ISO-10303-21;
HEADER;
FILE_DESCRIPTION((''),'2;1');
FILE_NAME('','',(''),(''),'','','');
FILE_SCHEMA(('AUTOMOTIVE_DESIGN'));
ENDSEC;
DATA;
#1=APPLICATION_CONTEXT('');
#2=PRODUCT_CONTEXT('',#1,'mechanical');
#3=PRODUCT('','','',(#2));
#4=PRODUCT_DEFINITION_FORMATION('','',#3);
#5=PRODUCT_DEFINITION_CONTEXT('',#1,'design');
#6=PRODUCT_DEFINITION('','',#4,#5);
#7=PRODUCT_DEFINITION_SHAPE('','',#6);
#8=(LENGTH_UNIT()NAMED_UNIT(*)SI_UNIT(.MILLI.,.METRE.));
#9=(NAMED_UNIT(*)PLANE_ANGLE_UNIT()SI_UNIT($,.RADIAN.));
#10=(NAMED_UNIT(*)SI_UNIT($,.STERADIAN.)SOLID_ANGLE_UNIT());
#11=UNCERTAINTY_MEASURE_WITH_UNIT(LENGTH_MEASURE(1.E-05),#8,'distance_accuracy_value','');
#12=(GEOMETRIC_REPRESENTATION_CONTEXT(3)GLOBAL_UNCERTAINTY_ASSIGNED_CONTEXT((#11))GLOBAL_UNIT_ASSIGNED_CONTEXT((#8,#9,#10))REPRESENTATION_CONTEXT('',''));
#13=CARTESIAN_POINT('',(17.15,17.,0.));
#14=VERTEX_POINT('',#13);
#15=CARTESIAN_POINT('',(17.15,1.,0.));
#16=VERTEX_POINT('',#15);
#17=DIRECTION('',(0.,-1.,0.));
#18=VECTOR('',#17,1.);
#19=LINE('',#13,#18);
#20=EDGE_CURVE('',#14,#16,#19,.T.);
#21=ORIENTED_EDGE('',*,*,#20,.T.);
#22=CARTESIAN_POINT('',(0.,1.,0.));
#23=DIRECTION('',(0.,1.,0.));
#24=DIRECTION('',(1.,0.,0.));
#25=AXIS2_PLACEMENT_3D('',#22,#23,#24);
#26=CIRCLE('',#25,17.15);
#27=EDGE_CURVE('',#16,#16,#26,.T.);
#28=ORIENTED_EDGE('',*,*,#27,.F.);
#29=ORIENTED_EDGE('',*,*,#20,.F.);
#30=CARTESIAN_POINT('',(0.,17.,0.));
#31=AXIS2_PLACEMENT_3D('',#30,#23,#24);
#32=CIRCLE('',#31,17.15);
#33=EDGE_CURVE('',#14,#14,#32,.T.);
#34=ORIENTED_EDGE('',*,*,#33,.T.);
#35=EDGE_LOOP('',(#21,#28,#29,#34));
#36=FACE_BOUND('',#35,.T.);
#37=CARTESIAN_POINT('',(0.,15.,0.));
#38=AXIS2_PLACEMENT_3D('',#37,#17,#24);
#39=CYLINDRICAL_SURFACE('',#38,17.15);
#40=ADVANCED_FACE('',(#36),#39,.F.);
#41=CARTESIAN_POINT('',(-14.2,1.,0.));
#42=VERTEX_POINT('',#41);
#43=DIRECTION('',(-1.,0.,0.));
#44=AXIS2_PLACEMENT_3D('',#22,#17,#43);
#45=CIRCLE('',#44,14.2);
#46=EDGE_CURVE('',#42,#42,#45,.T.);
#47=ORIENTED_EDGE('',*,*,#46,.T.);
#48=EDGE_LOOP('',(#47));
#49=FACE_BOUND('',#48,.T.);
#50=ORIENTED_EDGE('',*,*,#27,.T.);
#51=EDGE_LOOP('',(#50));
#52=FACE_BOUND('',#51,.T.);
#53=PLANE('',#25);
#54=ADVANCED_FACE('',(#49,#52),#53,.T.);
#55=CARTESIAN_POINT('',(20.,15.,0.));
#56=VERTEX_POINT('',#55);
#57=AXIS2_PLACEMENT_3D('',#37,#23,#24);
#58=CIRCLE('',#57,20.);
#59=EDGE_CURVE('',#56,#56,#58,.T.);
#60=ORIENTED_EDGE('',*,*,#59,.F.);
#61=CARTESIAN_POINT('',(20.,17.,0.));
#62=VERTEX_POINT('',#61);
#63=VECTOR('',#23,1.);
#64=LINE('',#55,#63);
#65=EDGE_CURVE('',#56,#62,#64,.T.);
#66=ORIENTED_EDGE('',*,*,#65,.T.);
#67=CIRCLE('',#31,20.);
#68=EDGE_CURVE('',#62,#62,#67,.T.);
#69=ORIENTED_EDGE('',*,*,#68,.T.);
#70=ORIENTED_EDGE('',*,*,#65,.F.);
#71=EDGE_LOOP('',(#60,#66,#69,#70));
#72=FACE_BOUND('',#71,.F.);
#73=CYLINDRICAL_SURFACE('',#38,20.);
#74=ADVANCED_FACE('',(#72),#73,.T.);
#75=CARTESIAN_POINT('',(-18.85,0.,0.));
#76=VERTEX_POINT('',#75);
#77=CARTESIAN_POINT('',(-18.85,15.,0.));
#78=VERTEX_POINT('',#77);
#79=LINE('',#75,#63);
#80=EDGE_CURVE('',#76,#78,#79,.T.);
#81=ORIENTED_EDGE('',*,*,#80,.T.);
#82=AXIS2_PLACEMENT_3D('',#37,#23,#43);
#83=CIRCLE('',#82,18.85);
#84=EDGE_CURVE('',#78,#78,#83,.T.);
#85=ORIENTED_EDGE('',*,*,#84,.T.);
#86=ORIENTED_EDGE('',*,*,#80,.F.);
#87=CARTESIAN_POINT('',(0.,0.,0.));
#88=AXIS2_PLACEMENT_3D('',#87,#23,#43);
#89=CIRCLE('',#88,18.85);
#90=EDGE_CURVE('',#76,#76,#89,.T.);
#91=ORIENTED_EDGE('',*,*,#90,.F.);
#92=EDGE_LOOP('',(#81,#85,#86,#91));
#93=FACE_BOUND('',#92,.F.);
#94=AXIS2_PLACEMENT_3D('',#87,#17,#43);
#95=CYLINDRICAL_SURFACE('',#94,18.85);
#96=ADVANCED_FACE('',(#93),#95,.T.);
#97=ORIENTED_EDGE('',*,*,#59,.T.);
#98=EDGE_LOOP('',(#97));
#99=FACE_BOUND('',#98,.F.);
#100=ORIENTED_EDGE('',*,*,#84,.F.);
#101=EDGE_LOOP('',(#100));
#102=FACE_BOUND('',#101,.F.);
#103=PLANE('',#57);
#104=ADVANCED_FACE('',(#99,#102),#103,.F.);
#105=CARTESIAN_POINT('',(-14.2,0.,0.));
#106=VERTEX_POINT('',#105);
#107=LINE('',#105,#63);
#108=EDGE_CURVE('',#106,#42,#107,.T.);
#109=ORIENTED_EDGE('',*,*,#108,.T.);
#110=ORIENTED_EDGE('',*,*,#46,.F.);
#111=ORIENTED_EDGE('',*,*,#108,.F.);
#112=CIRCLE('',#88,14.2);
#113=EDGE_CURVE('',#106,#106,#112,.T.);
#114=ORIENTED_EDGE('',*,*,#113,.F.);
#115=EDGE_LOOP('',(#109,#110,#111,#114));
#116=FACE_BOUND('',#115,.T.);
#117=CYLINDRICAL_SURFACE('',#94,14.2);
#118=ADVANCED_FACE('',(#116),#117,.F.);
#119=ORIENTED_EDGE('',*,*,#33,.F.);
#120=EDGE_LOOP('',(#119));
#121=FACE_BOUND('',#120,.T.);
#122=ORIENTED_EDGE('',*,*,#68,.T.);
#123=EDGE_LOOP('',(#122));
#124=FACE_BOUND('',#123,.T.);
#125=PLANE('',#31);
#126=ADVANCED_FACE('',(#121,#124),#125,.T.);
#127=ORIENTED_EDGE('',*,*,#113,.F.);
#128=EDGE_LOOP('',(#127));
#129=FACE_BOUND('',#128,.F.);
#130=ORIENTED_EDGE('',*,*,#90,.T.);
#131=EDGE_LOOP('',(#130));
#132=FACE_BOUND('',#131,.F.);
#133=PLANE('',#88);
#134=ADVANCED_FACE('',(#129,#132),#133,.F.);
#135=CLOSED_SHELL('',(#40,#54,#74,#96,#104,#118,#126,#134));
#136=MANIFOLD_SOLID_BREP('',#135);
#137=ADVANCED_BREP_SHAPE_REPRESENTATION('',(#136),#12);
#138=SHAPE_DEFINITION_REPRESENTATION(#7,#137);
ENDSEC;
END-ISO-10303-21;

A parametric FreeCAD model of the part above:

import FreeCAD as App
import Part
import Sketcher
from FreeCAD import Vector
Q = App.Units.Quantity

doc = App.newDocument("Part")
params = doc.addObject("Spreadsheet::Sheet", "Params")
for row, (alias, value) in enumerate([
    ("sketch1_diameter", "37.7 mm"),
    ("sketch1_diameter2", "28.4 mm"),
    ("pad1_length", "15 mm"),
    ("sketch2_diameter", "34.3 mm"),
    ("pocket1_length", "14 mm"),
    ("sketch3_diameter", "40 mm"),
    ("sketch3_diameter2", "34.3 mm"),
    ("pad2_length", "2 mm"),
], start=1):
    params.set(f"A{row}", alias)
    params.set(f"B{row}", "=" + value)
    params.setAlias(f"B{row}", alias)

body = doc.addObject("PartDesign::Body", "Body")

# Sketch on XZ plane
sketch1 = body.newObject("Sketcher::SketchObject", "Sketch")
sketch1.AttachmentSupport = (doc.getObject("XZ_Plane"), [""])
sketch1.MapMode = "FlatFace"
sketch1.addGeometry([
    Part.Circle(Vector(0, 0, 0), Vector(0, 0, 1), 18.85),
    Part.Circle(Vector(0, 0, 0), Vector(0, 0, 1), 14.2),
], False)
sketch1.addConstraint([
    Sketcher.Constraint("Coincident", 0, 3, -1, 1),
    Sketcher.Constraint("Coincident", 1, 3, -1, 1),
    Sketcher.Constraint("Diameter", 0, Q("37.7 mm")),
    Sketcher.Constraint("Diameter", 1, Q("28.4 mm")),
])
sketch1.setExpression("Constraints[2]", "Params.sketch1_diameter")
sketch1.setExpression("Constraints[3]", "Params.sketch1_diameter2")
pad1 = body.newObject("PartDesign::Pad", "Pad")
pad1.Profile = sketch1
pad1.setExpression("Length", "Params.pad1_length")
pad1.Reversed = True

# Sketch on XZ plane
sketch2 = body.newObject("Sketcher::SketchObject", "Sketch001")
sketch2.AttachmentSupport = (doc.getObject("XZ_Plane"), [""])
sketch2.MapMode = "FlatFace"
sketch2.AttachmentOffset = App.Placement(Vector(0, 0, -15), App.Rotation())
sketch2.addGeometry(Part.Circle(Vector(0, 0, 0), Vector(0, 0, 1), 17.15), False)
sketch2.addConstraint([
    Sketcher.Constraint("Coincident", 0, 3, -1, 1),
    Sketcher.Constraint("Diameter", 0, Q("34.3 mm")),
])
sketch2.setExpression("Constraints[1]", "Params.sketch2_diameter")
pocket1 = body.newObject("PartDesign::Pocket", "Pocket")
pocket1.Profile = sketch2
pocket1.setExpression("Length", "Params.pocket1_length")
pocket1.Reversed = True

# Sketch on XZ plane
sketch3 = body.newObject("Sketcher::SketchObject", "Sketch002")
sketch3.AttachmentSupport = (doc.getObject("XZ_Plane"), [""])
sketch3.MapMode = "FlatFace"
sketch3.AttachmentOffset = App.Placement(Vector(0, 0, -15), App.Rotation())
sketch3.addGeometry([
    Part.Circle(Vector(0, 0, 0), Vector(0, 0, 1), 20),
    Part.Circle(Vector(0, 0, 0), Vector(0, 0, 1), 17.15),
], False)
sketch3.addConstraint([
    Sketcher.Constraint("Coincident", 0, 3, -1, 1),
    Sketcher.Constraint("Coincident", 1, 3, -1, 1),
    Sketcher.Constraint("Diameter", 0, Q("40 mm")),
    Sketcher.Constraint("Diameter", 1, Q("34.3 mm")),
])
sketch3.setExpression("Constraints[2]", "Params.sketch3_diameter")
sketch3.setExpression("Constraints[3]", "Params.sketch3_diameter2")
pad2 = body.newObject("PartDesign::Pad", "Pad001")
pad2.Profile = sketch3
pad2.setExpression("Length", "Params.pad2_length")
pad2.Reversed = True

doc.recompute()
